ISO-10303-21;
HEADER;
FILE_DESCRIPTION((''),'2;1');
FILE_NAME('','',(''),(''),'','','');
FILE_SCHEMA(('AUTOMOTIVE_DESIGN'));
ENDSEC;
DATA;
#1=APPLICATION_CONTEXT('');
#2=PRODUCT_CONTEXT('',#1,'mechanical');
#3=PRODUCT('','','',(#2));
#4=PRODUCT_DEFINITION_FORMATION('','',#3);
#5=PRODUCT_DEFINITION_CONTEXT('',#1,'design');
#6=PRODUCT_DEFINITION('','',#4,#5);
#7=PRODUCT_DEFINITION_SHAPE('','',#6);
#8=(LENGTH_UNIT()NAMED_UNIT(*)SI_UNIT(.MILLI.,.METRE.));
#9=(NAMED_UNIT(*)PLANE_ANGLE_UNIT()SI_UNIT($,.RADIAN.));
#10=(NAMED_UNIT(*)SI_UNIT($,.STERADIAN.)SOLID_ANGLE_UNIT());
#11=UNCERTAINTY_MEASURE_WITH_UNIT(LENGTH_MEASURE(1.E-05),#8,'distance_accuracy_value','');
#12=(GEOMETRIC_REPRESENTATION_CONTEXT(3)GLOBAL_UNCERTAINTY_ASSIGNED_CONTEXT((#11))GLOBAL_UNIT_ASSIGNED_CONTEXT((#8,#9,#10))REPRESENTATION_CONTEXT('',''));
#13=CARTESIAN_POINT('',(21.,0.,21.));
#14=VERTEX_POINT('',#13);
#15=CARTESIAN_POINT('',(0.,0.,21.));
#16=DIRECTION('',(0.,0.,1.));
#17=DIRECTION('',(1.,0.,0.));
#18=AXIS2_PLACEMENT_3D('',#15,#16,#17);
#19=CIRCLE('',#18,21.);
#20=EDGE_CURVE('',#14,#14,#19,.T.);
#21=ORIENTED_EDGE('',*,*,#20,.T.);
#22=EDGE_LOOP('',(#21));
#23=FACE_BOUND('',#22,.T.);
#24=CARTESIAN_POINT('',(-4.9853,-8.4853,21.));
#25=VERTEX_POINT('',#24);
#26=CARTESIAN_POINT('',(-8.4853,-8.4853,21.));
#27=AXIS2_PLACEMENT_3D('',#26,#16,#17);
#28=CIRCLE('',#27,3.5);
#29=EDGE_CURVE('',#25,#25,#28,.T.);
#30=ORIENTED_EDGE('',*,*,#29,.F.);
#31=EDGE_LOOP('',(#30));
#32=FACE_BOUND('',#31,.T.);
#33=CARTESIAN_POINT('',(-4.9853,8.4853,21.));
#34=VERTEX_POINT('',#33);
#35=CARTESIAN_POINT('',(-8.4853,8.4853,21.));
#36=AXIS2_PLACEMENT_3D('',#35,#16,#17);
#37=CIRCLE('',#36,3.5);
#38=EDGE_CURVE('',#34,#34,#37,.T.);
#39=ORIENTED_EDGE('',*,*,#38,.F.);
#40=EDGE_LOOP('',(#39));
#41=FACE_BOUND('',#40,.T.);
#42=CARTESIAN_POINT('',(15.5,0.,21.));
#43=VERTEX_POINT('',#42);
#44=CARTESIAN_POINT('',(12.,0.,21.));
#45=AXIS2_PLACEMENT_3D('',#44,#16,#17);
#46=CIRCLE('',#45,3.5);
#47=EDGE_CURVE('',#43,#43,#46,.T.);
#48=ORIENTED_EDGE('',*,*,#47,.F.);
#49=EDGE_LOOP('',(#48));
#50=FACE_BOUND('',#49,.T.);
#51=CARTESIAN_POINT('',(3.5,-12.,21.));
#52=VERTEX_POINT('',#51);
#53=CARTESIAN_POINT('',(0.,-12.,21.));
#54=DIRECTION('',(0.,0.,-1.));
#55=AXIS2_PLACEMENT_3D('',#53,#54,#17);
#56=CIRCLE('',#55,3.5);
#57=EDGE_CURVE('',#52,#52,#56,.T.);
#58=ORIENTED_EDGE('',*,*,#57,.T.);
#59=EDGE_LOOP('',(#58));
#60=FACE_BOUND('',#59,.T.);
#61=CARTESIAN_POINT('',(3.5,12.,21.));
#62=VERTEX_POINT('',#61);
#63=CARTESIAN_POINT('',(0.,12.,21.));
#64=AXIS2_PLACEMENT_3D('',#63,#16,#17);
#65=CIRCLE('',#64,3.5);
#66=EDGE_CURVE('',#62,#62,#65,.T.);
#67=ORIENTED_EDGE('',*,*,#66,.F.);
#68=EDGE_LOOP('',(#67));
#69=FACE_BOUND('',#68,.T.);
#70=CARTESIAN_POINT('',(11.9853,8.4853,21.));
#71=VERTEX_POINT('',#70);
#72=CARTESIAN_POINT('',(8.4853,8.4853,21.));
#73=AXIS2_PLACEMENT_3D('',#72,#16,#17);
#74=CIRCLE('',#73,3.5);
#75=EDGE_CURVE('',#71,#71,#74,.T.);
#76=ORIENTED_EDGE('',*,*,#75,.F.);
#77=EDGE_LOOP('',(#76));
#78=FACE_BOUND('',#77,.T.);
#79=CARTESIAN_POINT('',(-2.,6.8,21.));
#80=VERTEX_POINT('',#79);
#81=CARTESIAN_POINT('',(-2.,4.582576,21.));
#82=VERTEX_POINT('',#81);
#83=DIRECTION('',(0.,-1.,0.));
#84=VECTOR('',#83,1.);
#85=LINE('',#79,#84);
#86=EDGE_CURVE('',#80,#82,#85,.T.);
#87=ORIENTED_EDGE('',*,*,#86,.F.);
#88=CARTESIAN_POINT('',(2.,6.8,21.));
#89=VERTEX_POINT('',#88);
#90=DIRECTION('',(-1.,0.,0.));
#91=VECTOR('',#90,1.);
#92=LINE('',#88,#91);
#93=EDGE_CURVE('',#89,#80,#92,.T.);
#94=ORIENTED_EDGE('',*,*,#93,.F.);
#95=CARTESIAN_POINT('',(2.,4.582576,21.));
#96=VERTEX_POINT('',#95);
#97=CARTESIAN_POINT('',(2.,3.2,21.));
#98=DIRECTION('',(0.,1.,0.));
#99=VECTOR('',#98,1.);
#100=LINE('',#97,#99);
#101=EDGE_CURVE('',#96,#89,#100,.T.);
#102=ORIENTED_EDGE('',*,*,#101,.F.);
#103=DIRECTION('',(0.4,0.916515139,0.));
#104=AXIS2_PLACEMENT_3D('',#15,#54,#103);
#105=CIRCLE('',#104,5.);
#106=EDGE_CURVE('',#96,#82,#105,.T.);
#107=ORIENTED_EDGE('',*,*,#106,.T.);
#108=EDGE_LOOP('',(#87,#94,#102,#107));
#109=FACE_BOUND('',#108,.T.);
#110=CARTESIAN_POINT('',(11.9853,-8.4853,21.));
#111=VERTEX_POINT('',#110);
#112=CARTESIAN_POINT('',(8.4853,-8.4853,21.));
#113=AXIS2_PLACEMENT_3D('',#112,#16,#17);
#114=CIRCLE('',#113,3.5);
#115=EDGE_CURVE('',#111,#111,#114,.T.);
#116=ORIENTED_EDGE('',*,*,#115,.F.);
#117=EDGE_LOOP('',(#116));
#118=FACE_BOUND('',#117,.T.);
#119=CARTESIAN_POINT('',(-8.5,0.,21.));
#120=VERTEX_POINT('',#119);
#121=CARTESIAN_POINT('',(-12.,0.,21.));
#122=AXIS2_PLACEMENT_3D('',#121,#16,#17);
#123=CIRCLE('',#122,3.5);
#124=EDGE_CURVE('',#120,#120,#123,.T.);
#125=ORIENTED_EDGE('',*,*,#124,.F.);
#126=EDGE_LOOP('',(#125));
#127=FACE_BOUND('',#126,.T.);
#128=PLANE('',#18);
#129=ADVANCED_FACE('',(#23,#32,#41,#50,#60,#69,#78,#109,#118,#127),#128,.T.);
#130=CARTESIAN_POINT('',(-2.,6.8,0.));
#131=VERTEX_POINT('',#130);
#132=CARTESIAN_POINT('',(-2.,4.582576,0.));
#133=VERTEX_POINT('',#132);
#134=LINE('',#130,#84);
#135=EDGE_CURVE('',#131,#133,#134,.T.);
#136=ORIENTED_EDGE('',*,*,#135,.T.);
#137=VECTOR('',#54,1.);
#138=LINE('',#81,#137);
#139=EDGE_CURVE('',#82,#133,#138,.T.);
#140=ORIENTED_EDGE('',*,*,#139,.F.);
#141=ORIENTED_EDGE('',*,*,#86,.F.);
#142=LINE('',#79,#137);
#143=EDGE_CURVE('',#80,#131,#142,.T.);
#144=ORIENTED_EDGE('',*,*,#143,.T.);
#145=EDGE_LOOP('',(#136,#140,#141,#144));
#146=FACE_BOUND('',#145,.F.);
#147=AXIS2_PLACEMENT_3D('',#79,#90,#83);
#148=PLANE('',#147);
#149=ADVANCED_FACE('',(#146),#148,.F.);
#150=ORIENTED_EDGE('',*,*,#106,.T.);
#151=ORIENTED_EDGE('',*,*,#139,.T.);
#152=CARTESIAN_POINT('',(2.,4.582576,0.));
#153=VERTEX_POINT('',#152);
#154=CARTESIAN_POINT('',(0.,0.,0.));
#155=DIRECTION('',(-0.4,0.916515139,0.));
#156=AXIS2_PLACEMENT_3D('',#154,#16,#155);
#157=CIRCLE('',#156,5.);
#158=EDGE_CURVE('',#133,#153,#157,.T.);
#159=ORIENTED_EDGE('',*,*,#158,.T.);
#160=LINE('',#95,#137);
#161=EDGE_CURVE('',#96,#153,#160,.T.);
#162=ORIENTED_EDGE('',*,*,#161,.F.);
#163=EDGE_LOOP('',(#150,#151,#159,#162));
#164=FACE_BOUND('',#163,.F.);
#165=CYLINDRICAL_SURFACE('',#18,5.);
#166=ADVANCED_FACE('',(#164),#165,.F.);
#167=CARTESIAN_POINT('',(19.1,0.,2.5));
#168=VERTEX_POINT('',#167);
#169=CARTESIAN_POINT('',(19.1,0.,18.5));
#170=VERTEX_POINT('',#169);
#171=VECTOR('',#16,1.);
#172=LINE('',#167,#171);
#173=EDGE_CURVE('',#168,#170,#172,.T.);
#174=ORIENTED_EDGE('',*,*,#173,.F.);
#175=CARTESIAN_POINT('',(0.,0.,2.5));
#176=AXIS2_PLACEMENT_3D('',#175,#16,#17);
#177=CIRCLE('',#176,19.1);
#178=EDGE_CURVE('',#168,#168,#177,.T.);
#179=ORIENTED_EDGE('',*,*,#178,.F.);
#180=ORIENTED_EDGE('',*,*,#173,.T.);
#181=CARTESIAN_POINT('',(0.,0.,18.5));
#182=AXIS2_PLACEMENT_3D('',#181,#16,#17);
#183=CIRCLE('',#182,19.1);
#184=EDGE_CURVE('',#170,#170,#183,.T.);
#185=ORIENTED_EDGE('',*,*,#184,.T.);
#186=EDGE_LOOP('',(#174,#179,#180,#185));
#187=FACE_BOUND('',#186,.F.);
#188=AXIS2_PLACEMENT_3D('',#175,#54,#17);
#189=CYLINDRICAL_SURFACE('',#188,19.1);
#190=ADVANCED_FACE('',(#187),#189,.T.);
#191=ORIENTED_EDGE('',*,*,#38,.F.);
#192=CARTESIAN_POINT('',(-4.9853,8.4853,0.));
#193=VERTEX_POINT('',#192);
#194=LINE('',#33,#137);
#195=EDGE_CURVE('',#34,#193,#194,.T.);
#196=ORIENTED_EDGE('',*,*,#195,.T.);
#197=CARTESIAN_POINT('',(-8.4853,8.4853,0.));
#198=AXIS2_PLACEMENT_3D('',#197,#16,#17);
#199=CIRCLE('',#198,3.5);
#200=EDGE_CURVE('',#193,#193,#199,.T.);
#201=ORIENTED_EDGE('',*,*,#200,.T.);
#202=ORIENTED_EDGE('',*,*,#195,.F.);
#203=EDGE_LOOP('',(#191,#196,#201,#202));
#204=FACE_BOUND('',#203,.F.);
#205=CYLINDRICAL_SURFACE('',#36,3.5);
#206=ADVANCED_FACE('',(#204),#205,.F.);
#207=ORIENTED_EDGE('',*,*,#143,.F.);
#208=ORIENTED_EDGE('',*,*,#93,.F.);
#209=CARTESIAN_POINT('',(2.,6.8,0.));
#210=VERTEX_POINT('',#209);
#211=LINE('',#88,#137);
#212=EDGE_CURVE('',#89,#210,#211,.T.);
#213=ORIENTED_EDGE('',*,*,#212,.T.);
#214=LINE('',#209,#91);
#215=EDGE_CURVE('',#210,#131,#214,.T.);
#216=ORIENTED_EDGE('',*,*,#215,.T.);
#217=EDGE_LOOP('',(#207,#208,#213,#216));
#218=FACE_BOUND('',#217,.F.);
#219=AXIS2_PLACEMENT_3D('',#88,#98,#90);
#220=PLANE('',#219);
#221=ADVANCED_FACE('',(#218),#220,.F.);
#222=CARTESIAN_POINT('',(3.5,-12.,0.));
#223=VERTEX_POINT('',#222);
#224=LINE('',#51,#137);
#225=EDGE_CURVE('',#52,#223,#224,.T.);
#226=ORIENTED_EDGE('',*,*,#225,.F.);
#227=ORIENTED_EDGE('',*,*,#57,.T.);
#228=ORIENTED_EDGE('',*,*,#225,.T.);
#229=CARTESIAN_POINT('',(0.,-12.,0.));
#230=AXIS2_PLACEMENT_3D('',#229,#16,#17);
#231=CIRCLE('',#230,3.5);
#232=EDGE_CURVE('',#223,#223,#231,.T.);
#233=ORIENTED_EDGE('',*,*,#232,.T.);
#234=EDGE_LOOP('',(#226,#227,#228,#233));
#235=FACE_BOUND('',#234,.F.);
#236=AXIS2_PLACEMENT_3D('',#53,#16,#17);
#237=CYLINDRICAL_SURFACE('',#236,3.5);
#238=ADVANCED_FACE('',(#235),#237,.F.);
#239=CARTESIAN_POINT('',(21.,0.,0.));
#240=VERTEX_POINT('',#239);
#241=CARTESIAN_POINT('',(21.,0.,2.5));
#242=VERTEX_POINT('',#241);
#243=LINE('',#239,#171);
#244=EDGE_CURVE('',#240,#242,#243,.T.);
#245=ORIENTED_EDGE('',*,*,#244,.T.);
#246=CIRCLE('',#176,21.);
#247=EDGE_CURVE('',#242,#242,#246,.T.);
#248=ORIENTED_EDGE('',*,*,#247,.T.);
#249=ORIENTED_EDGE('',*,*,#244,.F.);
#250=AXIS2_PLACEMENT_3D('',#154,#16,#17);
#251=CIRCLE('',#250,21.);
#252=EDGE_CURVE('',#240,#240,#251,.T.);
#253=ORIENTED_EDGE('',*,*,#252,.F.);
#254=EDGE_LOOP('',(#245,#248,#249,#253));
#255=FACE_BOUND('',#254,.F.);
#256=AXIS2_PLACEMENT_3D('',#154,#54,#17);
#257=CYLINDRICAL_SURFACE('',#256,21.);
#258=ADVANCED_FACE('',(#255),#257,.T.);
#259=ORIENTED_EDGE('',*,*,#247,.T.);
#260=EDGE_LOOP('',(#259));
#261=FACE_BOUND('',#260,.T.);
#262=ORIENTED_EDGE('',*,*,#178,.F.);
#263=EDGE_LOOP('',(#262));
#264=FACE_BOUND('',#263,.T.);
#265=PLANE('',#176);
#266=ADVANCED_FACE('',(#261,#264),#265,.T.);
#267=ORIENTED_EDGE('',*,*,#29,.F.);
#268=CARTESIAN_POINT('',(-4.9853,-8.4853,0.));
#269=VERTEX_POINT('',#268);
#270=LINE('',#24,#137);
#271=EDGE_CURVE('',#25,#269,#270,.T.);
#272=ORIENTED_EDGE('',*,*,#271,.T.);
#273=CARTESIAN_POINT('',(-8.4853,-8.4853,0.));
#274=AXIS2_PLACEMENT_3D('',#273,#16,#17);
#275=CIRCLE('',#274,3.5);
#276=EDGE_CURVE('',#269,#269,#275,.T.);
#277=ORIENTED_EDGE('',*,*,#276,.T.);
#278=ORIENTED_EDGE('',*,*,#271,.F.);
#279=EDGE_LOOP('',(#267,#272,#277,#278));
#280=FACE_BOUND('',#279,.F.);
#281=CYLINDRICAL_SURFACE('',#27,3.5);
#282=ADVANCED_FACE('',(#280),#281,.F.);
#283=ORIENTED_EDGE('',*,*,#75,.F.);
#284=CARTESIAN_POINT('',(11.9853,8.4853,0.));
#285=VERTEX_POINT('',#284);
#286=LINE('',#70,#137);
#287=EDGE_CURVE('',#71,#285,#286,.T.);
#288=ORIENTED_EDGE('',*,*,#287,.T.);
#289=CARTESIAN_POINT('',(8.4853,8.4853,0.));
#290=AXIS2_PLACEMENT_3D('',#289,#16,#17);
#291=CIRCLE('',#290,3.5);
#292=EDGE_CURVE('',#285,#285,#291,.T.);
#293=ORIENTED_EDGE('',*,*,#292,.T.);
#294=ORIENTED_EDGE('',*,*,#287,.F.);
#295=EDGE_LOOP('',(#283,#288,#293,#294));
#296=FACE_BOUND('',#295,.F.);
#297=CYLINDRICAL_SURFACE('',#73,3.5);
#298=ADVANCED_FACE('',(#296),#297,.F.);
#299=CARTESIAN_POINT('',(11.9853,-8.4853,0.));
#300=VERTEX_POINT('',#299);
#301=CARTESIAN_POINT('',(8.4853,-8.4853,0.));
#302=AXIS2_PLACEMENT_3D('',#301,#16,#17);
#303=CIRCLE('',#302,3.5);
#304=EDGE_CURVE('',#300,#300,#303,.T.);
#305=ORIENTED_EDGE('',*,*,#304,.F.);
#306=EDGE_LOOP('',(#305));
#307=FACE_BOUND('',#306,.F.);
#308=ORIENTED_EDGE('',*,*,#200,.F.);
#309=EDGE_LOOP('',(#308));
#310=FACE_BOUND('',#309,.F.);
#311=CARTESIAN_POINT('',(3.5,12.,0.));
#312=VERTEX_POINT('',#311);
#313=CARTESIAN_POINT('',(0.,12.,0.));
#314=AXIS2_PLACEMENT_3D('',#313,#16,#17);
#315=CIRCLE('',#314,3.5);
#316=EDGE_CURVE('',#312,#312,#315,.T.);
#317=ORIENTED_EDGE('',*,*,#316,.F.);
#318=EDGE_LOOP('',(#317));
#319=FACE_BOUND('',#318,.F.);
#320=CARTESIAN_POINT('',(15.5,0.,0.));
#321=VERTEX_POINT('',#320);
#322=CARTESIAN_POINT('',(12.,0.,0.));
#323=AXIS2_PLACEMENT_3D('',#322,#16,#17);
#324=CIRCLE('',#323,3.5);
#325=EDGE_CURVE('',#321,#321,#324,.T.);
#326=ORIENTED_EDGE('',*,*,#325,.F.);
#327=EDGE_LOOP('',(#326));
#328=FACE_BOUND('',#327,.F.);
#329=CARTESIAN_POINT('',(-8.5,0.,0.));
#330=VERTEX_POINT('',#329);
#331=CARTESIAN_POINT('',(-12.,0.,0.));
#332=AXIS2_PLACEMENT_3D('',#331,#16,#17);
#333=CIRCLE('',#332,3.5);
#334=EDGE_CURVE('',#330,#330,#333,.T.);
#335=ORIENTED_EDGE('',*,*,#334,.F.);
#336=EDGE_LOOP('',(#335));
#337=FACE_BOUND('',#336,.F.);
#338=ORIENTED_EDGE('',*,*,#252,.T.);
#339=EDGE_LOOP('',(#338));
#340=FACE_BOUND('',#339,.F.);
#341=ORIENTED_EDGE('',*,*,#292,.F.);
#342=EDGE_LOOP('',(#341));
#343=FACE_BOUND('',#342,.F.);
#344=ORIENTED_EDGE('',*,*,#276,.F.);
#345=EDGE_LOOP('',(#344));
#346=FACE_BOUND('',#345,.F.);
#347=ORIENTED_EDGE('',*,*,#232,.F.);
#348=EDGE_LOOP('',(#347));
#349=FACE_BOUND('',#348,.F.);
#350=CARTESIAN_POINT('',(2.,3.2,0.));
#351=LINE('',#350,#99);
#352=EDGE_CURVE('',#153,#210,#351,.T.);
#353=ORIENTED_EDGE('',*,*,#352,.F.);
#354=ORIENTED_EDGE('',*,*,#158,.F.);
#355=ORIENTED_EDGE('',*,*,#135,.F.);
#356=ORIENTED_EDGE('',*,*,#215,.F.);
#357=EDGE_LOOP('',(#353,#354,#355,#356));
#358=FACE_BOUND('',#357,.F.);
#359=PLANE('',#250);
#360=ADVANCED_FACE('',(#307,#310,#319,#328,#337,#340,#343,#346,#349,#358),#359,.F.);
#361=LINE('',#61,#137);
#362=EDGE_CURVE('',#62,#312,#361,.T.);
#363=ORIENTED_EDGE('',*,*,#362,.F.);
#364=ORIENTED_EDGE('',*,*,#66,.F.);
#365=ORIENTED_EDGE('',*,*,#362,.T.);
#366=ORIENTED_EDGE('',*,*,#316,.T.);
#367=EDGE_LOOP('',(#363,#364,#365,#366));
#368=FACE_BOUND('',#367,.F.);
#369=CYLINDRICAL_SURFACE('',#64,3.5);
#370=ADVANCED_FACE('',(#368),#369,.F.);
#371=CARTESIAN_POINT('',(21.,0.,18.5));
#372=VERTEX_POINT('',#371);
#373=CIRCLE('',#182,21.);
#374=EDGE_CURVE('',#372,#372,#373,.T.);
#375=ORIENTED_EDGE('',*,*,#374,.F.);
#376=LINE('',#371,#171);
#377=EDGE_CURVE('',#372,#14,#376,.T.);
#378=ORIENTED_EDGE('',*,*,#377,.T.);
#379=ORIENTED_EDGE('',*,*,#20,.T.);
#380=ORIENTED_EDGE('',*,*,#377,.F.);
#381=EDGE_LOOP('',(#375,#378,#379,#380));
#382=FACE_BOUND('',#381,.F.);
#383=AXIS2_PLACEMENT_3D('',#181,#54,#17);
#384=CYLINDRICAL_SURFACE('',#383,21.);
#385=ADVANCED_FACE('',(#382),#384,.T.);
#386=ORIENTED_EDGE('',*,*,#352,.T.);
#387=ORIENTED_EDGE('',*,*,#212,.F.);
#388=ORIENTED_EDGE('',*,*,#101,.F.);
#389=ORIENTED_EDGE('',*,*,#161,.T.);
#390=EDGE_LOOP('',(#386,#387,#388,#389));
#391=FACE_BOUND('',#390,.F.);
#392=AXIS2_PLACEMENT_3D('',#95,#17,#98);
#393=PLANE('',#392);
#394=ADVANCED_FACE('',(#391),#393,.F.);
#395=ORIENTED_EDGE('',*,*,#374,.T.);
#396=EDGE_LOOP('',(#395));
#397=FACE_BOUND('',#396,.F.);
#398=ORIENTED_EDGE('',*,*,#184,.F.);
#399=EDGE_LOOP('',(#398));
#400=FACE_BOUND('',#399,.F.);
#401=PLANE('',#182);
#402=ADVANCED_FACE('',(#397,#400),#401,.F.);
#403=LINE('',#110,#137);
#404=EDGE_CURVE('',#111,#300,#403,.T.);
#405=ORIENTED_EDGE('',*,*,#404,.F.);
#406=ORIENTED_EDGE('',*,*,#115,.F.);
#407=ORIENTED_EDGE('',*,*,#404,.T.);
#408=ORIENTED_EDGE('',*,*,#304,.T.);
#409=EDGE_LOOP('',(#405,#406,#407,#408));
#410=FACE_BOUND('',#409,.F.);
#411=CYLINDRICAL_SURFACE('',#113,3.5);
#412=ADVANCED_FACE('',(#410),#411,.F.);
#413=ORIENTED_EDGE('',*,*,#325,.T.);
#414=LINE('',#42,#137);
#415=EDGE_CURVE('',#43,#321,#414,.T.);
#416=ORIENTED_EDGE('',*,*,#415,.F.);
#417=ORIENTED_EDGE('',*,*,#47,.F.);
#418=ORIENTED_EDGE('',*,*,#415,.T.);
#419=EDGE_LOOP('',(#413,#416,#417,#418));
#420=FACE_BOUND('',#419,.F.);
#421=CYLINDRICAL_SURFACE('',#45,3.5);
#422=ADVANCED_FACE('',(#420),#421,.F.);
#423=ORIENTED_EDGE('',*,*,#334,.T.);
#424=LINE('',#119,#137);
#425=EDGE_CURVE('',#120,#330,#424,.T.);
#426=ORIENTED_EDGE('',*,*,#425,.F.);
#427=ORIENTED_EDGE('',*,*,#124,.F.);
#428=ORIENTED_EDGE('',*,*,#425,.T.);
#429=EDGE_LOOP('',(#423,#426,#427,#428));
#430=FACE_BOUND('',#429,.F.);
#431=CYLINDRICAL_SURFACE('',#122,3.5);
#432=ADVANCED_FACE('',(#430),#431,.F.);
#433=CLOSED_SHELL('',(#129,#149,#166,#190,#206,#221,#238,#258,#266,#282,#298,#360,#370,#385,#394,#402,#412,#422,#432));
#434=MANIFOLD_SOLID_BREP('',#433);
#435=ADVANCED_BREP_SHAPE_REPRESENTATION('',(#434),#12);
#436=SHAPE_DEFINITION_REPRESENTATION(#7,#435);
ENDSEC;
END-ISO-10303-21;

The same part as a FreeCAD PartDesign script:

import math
import FreeCAD as App
import Part
import Sketcher
from FreeCAD import Vector

doc = App.newDocument("Part")
params = doc.addObject("Spreadsheet::Sheet", "Params")
for row, (alias, value) in enumerate([
    ("sketch1_diameter", "42 mm"),
    ("pad1_length", "2.5 mm"),
    ("sketch2_diameter", "38.2 mm"),
    ("pad2_length", "16 mm"),
    ("sketch3_diameter", "42 mm"),
    ("pad3_length", "2.5 mm"),
    ("sketch4_radius", "5 mm"),
    ("sketch4_width", "4 mm"),
    ("pocket1_length", "21 mm"),
    ("sketch5_diameter", "7 mm"),
    ("pocket2_length", "21 mm"),
], start=1):
    params.set(f"A{row}", alias)
    params.set(f"B{row}", "=" + value)
    params.setAlias(f"B{row}", alias)

body = doc.addObject("PartDesign::Body", "Body")

# Sketch on XY plane
sketch1 = body.newObject("Sketcher::SketchObject", "Sketch")
sketch1.AttachmentSupport = (doc.getObject("XY_Plane"), [""])
sketch1.MapMode = "FlatFace"
sketch1.addGeometry(Part.Circle(Vector(0, 0, 0), Vector(0, 0, 1), 21), False)
sketch1.addConstraint([
    Sketcher.Constraint("Coincident", 0, 3, -1, 1),
    Sketcher.Constraint("Diameter", 0, 42.0),
])
sketch1.setExpression("Constraints[1]", "Params.sketch1_diameter")
pad1 = body.newObject("PartDesign::Pad", "Pad")
pad1.Profile = sketch1
pad1.setExpression("Length", "Params.pad1_length")

# Sketch on XY plane
sketch2 = body.newObject("Sketcher::SketchObject", "Sketch001")
sketch2.AttachmentSupport = (doc.getObject("XY_Plane"), [""])
sketch2.MapMode = "FlatFace"
sketch2.AttachmentOffset = App.Placement(Vector(0, 0, 2.5), App.Rotation())
sketch2.addGeometry(Part.Circle(Vector(0, 0, 0), Vector(0, 0, 1), 19), False)
sketch2.addConstraint([
    Sketcher.Constraint("Coincident", 0, 3, -1, 1),
    Sketcher.Constraint("Diameter", 0, 38.2),
])
sketch2.setExpression("Constraints[1]", "Params.sketch2_diameter")
pad2 = body.newObject("PartDesign::Pad", "Pad001")
pad2.Profile = sketch2
pad2.setExpression("Length", "Params.pad2_length")

# Sketch on XY plane
sketch3 = body.newObject("Sketcher::SketchObject", "Sketch002")
sketch3.AttachmentSupport = (doc.getObject("XY_Plane"), [""])
sketch3.MapMode = "FlatFace"
sketch3.AttachmentOffset = App.Placement(Vector(0, 0, 18.5), App.Rotation())
sketch3.addGeometry(Part.Circle(Vector(0, 0, 0), Vector(0, 0, 1), 21), False)
sketch3.addConstraint([
    Sketcher.Constraint("Coincident", 0, 3, -1, 1),
    Sketcher.Constraint("Diameter", 0, 42.0),
])
sketch3.setExpression("Constraints[1]", "Params.sketch3_diameter")
pad3 = body.newObject("PartDesign::Pad", "Pad002")
pad3.Profile = sketch3
pad3.setExpression("Length", "Params.pad3_length")

# Sketch on XY plane
sketch4 = body.newObject("Sketcher::SketchObject", "Sketch003")
sketch4.AttachmentSupport = (doc.getObject("XY_Plane"), [""])
sketch4.MapMode = "FlatFace"
sketch4.AttachmentOffset = App.Placement(Vector(0, 0, 21), App.Rotation())
sketch4.addGeometry([
    Part.ArcOfCircle(Part.Circle(Vector(0, 0, 0), Vector(0, 0, 1), 5), math.radians(114), math.radians(426)),
    Part.LineSegment(Vector(2, 4.6, 0), Vector(2, 6.8, 0)),
    Part.LineSegment(Vector(2, 6.8, 0), Vector(-2, 6.8, 0)),
    Part.LineSegment(Vector(-2, 6.8, 0), Vector(-2, 4.6, 0)),
], False)
sketch4.addConstraint([
    Sketcher.Constraint("Coincident", 0, 2, 1, 1),
    Sketcher.Constraint("Coincident", 1, 2, 2, 1),
    Sketcher.Constraint("Coincident", 2, 2, 3, 1),
    Sketcher.Constraint("Coincident", 3, 2, 0, 1),
    Sketcher.Constraint("Vertical", 1),
    Sketcher.Constraint("Horizontal", 2),
    Sketcher.Constraint("Vertical", 3),
    Sketcher.Constraint("Coincident", 0, 3, -1, 1),
    Sketcher.Constraint("Horizontal", 0, 2, 3, 2),
    Sketcher.Constraint("Radius", 0, 5.0),
    Sketcher.Constraint("DistanceX", 2, 2, 2, 1, 4.0),
    Sketcher.Constraint("DistanceY", -1, 1, 1, 2, 6.8),
])
sketch4.setExpression("Constraints[9]", "Params.sketch4_radius")
sketch4.setExpression("Constraints[10]", "Params.sketch4_width")
pocket1 = body.newObject("PartDesign::Pocket", "Pocket")
pocket1.Profile = sketch4
pocket1.setExpression("Length", "Params.pocket1_length")

# Sketch on XY plane
sketch5 = body.newObject("Sketcher::SketchObject", "Sketch004")
sketch5.AttachmentSupport = (doc.getObject("XY_Plane"), [""])
sketch5.MapMode = "FlatFace"
sketch5.AttachmentOffset = App.Placement(Vector(0, 0, 21), App.Rotation())
sketch5.addGeometry([
    Part.Circle(Vector(0, -12, 0), Vector(0, 0, 1), 3.5),  # 0
    Part.Circle(Vector(8.5, -8.5, 0), Vector(0, 0, 1), 3.5),  # 1
    Part.Circle(Vector(12, 0, 0), Vector(0, 0, 1), 3.5),  # 2
    Part.Circle(Vector(8.5, 8.5, 0), Vector(0, 0, 1), 3.5),  # 3
    Part.Circle(Vector(0, 12, 0), Vector(0, 0, 1), 3.5),  # 4
    Part.Circle(Vector(-8.5, 8.5, 0), Vector(0, 0, 1), 3.5),  # 5
    Part.Circle(Vector(-12, 0, 0), Vector(0, 0, 1), 3.5),  # 6
    Part.Circle(Vector(-8.5, -8.5, 0), Vector(0, 0, 1), 3.5),  # 7
], False)
sketch5.addConstraint([
    Sketcher.Constraint("Equal", 0, 1),
    Sketcher.Constraint("Equal", 1, 2),
    Sketcher.Constraint("Equal", 2, 3),
    Sketcher.Constraint("Equal", 3, 4),
    Sketcher.Constraint("Equal", 4, 5),
    Sketcher.Constraint("Equal", 5, 6),
    Sketcher.Constraint("Equal", 6, 7),
    Sketcher.Constraint("Symmetric", 0, 3, 4, 3, -1, 1),
    Sketcher.Constraint("Symmetric", 1, 3, 5, 3, -1, 1),
    Sketcher.Constraint("Symmetric", 2, 3, 6, 3, -1, 1),
    Sketcher.Constraint("Symmetric", 3, 3, 7, 3, -1, 1),
    Sketcher.Constraint("Symmetric", 3, 3, 5, 3, -2),
    Sketcher.Constraint("PointOnObject", 0, 3, -2),
    Sketcher.Constraint("PointOnObject", 2, 3, -1),
    Sketcher.Constraint("Diameter", 0, 7.0),
    Sketcher.Constraint("DistanceY", 0, 3, -1, 1, 12.0),
    Sketcher.Constraint("DistanceX", -1, 1, 2, 3, 12.0),
    Sketcher.Constraint("DistanceX", -1, 1, 1, 3, 8.4853),
    Sketcher.Constraint("DistanceY", 1, 3, -1, 1, 8.4853),
])
sketch5.setExpression("Constraints[14]", "Params.sketch5_diameter")
pocket2 = body.newObject("PartDesign::Pocket", "Pocket001")
pocket2.Profile = sketch5
pocket2.setExpression("Length", "Params.pocket2_length")

doc.recompute()
